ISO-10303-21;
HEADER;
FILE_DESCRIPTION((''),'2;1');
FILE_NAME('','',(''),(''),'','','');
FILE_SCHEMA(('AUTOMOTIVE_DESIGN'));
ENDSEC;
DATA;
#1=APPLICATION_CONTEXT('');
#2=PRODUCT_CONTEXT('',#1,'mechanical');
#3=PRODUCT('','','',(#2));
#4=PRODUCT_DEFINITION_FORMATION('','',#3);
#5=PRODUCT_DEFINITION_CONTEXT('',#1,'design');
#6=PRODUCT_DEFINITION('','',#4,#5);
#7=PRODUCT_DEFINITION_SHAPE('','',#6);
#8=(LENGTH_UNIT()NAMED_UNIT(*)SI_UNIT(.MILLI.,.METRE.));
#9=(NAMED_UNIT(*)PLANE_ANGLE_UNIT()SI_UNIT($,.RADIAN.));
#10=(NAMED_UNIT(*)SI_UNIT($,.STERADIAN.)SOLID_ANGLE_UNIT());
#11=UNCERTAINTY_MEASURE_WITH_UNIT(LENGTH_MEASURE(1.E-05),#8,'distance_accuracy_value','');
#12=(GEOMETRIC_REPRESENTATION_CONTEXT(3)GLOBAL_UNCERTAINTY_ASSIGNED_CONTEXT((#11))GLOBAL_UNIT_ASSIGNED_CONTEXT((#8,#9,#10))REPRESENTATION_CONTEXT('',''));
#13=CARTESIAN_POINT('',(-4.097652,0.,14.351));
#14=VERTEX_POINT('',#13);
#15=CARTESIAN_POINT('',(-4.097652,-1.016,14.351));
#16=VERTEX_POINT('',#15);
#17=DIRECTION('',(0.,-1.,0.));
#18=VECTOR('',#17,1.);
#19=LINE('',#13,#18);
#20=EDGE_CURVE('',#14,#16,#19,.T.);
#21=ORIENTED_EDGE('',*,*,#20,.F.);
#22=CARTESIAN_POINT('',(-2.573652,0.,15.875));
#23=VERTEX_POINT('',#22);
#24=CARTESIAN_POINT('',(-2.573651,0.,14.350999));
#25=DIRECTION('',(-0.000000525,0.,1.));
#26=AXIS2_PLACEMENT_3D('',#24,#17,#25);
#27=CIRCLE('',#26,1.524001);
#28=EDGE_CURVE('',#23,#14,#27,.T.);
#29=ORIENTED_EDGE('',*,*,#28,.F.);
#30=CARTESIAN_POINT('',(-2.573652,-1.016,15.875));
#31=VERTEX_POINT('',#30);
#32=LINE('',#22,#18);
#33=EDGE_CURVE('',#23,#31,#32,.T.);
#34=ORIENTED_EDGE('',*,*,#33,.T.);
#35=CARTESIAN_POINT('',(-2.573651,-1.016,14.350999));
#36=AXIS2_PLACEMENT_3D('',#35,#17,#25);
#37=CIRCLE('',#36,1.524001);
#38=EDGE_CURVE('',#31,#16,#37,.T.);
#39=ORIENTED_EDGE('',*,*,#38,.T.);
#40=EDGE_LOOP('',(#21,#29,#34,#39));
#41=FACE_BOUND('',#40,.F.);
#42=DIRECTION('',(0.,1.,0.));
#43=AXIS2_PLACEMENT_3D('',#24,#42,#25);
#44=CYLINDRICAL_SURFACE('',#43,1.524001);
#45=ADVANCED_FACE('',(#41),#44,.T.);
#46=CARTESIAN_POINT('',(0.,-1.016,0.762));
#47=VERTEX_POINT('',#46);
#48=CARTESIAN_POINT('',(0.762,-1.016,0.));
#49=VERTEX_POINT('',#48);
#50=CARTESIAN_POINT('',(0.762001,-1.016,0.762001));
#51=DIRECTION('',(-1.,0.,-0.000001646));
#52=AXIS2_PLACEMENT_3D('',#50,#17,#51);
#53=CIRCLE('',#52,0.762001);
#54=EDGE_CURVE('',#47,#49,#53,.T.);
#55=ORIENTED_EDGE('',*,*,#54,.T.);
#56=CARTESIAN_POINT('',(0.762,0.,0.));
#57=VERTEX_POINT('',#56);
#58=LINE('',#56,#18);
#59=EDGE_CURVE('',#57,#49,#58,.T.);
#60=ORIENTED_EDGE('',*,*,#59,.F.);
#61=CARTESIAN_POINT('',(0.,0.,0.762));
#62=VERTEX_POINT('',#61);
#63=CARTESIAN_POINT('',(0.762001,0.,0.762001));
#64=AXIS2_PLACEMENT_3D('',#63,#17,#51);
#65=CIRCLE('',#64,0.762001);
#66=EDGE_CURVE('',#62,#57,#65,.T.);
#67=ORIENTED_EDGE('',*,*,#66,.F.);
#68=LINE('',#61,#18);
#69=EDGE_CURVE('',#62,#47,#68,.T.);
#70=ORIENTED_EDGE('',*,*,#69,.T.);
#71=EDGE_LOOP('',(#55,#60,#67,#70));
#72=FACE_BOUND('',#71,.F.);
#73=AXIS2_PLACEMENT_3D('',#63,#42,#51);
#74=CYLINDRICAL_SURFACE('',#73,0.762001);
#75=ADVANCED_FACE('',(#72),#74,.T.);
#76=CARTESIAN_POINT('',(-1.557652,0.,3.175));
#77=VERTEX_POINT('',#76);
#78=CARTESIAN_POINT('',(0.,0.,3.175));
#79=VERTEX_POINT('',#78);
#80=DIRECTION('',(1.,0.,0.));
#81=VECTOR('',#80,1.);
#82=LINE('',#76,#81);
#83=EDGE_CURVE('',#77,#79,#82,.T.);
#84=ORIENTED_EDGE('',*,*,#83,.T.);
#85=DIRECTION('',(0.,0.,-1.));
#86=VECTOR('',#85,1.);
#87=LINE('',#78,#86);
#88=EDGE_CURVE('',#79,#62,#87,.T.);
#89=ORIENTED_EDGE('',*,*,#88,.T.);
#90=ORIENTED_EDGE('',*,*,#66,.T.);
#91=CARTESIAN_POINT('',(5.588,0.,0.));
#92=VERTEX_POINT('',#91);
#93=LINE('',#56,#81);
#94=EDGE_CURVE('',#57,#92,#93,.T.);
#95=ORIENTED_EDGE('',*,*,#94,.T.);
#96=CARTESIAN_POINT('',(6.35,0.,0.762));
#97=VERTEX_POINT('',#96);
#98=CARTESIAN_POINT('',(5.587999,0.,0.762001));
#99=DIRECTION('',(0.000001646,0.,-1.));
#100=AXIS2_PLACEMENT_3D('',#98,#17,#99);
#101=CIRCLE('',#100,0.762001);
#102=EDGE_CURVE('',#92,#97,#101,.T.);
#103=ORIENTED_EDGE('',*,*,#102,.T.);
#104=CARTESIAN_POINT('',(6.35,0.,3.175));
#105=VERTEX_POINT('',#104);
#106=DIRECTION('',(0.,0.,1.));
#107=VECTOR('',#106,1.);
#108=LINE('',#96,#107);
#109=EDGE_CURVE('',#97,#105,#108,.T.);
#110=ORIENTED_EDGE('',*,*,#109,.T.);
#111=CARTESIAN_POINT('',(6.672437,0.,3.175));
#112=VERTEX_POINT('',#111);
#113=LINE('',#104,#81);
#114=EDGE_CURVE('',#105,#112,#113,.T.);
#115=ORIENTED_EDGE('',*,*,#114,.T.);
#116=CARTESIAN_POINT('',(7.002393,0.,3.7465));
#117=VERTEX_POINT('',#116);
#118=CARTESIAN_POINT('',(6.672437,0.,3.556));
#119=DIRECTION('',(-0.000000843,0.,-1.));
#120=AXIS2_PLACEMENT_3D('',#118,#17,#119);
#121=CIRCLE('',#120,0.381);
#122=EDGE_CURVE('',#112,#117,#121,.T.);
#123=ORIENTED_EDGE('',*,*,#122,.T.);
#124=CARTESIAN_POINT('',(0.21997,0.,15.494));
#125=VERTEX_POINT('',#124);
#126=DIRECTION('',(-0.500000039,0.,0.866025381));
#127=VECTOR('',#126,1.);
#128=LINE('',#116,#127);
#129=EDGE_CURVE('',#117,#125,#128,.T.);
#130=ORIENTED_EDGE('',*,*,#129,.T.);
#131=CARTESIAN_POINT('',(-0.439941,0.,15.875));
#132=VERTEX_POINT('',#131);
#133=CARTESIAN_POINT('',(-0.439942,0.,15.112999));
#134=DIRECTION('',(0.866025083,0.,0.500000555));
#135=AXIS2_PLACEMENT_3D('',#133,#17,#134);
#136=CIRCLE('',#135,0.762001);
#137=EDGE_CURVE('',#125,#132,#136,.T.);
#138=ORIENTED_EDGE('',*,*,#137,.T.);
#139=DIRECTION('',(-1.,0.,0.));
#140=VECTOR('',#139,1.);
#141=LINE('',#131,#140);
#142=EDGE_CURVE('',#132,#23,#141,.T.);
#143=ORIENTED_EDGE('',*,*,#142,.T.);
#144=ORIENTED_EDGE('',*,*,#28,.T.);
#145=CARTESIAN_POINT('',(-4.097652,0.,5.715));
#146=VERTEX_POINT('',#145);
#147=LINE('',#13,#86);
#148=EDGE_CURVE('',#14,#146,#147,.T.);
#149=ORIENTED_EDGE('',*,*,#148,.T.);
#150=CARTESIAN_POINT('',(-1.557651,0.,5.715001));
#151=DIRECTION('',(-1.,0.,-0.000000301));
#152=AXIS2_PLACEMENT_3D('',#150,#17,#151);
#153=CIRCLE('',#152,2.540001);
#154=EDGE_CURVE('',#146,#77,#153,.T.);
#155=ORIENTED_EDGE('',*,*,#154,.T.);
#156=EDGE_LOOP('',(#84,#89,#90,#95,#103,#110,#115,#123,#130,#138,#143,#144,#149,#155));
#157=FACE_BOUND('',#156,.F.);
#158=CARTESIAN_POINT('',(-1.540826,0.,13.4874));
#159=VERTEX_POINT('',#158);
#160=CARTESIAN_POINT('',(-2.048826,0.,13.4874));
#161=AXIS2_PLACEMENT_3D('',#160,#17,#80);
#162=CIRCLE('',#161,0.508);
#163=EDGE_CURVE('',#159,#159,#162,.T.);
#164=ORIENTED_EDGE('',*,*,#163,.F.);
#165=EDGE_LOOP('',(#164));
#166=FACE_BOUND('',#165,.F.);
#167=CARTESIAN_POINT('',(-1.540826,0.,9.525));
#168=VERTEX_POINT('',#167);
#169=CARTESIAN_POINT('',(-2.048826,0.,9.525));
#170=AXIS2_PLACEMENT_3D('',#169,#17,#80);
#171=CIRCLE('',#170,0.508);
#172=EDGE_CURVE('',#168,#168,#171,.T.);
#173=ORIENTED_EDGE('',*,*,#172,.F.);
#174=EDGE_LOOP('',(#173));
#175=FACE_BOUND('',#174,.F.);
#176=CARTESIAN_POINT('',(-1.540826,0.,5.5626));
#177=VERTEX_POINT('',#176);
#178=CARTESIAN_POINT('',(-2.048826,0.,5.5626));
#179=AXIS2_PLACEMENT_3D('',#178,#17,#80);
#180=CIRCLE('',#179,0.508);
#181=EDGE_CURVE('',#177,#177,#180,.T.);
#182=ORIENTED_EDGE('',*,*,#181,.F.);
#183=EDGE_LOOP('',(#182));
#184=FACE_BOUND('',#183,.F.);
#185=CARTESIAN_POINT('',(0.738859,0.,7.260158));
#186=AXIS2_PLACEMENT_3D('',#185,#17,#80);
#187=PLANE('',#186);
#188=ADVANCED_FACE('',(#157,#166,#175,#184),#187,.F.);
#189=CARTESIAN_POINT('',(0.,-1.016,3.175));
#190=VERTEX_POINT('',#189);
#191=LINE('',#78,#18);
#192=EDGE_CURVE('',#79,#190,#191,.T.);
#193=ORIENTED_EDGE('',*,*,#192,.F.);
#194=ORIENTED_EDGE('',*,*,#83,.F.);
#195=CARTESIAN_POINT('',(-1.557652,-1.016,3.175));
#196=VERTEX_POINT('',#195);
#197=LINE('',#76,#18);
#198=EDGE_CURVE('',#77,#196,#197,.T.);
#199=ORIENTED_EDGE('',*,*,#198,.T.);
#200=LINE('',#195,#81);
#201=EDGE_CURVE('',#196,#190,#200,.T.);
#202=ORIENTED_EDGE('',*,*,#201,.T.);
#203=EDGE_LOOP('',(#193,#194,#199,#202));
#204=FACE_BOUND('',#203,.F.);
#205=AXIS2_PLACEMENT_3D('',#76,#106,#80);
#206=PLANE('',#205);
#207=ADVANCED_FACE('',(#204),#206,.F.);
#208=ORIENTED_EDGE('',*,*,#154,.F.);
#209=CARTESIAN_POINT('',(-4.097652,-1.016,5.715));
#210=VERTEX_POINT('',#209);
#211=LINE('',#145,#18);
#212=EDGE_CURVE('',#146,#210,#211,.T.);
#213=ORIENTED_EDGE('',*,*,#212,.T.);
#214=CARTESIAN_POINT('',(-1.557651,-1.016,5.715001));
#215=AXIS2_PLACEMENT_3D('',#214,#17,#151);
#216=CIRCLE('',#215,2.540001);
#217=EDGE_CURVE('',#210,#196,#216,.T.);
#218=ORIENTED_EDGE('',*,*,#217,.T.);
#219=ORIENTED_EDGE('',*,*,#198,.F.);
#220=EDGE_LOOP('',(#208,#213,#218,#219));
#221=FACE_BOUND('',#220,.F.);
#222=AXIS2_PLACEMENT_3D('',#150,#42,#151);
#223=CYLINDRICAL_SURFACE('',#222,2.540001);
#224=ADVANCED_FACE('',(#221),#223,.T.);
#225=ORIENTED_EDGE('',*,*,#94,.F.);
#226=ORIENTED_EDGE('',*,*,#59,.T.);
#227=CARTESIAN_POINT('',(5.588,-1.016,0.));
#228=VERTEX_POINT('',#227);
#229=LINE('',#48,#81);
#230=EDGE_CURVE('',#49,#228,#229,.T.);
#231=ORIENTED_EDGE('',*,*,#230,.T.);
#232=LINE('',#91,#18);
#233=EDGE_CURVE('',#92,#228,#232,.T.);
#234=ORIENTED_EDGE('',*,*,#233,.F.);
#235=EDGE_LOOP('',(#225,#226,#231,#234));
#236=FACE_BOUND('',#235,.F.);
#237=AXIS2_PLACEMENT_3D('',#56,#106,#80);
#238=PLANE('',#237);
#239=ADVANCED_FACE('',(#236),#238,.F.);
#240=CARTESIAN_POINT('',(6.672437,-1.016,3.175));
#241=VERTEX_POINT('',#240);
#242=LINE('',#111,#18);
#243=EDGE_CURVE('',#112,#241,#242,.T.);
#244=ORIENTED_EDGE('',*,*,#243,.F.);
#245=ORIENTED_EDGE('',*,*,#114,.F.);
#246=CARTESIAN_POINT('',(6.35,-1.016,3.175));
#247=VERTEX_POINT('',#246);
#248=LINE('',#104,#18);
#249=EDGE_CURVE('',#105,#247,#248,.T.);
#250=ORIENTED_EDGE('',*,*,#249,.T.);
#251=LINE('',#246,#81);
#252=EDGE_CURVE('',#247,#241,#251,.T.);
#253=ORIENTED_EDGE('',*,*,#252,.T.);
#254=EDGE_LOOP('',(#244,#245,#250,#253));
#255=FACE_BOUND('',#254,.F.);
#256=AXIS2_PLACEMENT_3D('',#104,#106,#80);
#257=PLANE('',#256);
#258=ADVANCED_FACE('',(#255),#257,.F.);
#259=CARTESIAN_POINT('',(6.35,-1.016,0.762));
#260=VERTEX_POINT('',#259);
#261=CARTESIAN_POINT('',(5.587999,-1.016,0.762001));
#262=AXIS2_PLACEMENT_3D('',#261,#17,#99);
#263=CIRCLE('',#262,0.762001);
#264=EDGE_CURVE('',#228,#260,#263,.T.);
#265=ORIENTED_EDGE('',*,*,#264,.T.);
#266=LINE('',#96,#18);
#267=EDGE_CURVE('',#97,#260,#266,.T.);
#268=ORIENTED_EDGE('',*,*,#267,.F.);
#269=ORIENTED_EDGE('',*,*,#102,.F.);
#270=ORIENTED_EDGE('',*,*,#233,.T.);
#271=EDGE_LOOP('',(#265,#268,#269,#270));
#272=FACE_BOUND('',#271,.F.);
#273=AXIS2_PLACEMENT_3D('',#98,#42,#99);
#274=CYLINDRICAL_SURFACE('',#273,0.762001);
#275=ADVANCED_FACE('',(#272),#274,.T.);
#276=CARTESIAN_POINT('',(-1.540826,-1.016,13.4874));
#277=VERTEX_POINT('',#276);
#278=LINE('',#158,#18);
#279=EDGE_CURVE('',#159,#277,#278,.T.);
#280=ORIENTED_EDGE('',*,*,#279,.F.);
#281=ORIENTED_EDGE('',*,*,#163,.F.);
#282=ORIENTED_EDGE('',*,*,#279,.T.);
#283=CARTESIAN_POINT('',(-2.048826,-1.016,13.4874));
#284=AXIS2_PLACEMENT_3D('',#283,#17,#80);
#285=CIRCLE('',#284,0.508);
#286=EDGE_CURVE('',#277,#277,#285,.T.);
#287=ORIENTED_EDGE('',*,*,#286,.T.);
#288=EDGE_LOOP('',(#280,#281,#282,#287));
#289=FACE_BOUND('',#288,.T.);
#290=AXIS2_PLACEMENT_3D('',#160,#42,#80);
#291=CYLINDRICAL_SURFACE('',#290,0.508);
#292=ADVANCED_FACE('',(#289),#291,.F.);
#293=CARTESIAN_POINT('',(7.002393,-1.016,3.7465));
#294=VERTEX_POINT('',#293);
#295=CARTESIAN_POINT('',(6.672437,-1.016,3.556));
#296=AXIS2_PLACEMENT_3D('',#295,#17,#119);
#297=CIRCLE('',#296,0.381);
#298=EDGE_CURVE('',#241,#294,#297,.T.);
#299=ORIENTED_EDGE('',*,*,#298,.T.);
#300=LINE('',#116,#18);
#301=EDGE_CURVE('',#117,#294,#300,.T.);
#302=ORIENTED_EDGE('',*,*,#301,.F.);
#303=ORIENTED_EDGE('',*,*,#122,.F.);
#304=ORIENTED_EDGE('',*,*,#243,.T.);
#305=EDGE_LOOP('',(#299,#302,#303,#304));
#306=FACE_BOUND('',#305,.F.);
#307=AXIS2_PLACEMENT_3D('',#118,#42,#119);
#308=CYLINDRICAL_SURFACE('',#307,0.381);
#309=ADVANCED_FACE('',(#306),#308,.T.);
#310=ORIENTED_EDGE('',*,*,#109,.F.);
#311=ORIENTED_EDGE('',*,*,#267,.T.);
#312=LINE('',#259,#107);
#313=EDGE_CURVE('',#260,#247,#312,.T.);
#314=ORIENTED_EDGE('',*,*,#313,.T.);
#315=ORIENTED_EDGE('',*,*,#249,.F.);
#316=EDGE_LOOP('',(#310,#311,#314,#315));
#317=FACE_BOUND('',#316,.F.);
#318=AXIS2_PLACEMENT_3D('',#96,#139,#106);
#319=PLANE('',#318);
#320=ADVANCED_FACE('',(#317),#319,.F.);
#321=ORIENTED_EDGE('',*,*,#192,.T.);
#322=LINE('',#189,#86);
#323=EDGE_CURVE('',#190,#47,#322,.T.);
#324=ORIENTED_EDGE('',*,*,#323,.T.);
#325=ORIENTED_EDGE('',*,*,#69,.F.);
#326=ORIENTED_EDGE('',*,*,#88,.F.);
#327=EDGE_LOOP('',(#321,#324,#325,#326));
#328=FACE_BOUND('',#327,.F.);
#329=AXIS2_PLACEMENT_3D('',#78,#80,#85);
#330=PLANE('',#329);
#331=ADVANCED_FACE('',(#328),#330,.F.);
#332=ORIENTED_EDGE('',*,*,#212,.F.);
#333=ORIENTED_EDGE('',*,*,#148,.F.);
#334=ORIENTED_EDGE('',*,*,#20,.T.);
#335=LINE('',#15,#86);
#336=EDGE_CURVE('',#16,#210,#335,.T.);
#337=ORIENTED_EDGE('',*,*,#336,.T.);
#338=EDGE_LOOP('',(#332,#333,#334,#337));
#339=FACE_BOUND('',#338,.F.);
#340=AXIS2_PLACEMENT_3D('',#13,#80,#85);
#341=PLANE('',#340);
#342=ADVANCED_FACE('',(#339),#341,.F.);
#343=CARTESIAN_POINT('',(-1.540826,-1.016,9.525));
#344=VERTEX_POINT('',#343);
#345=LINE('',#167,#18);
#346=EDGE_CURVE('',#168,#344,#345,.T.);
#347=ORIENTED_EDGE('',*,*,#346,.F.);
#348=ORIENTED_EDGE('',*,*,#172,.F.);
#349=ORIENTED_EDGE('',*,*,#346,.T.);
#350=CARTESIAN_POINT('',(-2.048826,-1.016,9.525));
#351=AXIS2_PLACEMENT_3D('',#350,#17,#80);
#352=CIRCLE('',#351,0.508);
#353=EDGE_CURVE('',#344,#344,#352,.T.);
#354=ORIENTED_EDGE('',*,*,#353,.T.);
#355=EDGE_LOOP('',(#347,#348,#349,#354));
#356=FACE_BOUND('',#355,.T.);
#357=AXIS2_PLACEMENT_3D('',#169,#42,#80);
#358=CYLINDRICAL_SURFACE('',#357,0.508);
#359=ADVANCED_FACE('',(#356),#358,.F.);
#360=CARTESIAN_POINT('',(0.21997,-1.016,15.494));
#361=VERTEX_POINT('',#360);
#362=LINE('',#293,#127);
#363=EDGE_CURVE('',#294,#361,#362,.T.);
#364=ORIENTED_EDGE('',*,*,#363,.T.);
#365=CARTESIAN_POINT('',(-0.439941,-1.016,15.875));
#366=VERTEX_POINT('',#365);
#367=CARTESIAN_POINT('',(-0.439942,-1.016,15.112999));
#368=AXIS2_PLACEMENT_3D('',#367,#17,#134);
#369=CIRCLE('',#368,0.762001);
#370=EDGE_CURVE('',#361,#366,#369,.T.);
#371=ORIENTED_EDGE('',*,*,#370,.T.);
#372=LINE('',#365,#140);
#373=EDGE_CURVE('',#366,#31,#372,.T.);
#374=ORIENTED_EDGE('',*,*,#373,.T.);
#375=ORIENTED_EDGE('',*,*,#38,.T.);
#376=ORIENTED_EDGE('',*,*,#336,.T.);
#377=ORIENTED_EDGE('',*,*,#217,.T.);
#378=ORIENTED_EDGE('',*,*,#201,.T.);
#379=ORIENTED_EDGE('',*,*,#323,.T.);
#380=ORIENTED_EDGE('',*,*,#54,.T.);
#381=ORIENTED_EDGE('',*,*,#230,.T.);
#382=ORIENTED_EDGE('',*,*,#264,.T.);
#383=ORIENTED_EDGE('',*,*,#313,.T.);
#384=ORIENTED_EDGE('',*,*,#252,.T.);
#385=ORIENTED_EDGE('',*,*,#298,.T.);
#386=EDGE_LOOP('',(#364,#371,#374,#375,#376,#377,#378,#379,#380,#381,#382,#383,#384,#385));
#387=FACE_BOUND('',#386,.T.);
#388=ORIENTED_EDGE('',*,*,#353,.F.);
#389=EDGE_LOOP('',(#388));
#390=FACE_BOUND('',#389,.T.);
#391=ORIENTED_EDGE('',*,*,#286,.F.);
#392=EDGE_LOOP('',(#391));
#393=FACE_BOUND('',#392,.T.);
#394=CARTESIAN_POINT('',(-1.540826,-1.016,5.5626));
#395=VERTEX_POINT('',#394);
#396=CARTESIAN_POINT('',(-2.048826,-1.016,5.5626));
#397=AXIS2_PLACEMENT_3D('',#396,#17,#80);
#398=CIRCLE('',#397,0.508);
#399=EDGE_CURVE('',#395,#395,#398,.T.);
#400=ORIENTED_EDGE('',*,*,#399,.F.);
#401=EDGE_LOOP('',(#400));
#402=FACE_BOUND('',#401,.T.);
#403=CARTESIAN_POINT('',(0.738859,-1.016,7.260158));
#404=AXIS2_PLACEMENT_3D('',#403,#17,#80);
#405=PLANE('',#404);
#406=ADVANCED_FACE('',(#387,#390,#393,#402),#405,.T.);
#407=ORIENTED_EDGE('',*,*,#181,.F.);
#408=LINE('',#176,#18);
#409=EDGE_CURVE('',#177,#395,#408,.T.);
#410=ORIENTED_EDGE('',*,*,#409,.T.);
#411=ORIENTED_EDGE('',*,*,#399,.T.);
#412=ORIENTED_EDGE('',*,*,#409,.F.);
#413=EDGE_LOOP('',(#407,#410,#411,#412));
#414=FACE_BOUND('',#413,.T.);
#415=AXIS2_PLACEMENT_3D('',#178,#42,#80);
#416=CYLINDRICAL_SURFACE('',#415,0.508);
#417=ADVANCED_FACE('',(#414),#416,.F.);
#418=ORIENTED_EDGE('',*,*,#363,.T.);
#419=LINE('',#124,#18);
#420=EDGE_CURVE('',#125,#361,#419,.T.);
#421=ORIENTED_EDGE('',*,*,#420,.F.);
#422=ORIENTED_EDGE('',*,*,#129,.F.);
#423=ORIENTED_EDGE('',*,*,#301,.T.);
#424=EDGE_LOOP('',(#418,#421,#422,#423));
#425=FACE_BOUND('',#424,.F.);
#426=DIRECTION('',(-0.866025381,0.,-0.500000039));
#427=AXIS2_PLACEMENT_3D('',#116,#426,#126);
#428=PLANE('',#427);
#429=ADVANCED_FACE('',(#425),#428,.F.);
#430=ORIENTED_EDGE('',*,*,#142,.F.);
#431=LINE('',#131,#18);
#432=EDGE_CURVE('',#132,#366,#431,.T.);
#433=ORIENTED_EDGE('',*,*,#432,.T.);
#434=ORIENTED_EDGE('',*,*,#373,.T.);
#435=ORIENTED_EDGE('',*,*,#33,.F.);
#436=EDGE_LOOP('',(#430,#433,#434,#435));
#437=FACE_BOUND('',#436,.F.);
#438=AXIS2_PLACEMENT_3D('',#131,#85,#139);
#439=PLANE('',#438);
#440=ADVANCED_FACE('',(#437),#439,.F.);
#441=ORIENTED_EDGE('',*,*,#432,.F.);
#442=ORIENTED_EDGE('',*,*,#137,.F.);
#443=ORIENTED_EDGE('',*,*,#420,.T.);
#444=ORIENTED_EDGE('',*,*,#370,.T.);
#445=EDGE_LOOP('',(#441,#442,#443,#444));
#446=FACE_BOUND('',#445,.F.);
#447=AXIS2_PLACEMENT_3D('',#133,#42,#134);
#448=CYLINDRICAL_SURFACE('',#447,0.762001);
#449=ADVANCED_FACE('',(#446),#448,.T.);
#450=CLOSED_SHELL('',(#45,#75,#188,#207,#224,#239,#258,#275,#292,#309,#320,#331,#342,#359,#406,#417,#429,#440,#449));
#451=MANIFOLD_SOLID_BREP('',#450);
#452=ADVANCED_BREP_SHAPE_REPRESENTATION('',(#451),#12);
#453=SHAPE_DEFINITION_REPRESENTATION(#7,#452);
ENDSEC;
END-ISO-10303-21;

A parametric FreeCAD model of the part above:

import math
import FreeCAD as App
import Part
import Sketcher
Q = App.Units.Quantity

doc = App.newDocument("Part")
body = doc.addObject("PartDesign::Body", "Body")

# Sketch on XZ plane
sketch1 = body.newObject("Sketcher::SketchObject", "Sketch")
sketch1.AttachmentSupport = (doc.getObject("XZ_Plane"), [""])
sketch1.MapMode = "FlatFace"
sketch1.addGeometry([
    Part.LineSegment(App.Vector(0, 3.17, 0), App.Vector(0, 0.76, 0)),  # 0
    Part.ArcOfCircle(Part.Circle(App.Vector(0.76, 0.76, 0), App.Vector(0, 0, 1), 0.76), math.radians(-180), math.radians(-90)),  # 1
    Part.LineSegment(App.Vector(0.76, 0, 0), App.Vector(5.59, 0, 0)),  # 2
    Part.ArcOfCircle(Part.Circle(App.Vector(5.59, 0.76, 0), App.Vector(0, 0, 1), 0.76), math.radians(-90), math.radians(0)),  # 3
    Part.LineSegment(App.Vector(6.35, 0.76, 0), App.Vector(6.35, 3.17, 0)),  # 4
    Part.LineSegment(App.Vector(6.35, 3.17, 0), App.Vector(6.67, 3.17, 0)),  # 5
    Part.ArcOfCircle(Part.Circle(App.Vector(6.67, 3.56, 0), App.Vector(0, 0, 1), 0.38), math.radians(-90), math.radians(30)),  # 6
    Part.LineSegment(App.Vector(7, 3.75, 0), App.Vector(0.22, 15.49, 0)),  # 7
    Part.ArcOfCircle(Part.Circle(App.Vector(-0.44, 15.11, 0), App.Vector(0, 0, 1), 0.76), math.radians(30), math.radians(90)),  # 8
    Part.LineSegment(App.Vector(-0.44, 15.88, 0), App.Vector(-2.57, 15.88, 0)),  # 9
    Part.ArcOfCircle(Part.Circle(App.Vector(-2.57, 14.35, 0), App.Vector(0, 0, 1), 1.52), math.radians(90), math.radians(180)),  # 10
    Part.LineSegment(App.Vector(-4.1, 14.35, 0), App.Vector(-4.1, 5.71, 0)),  # 11
    Part.ArcOfCircle(Part.Circle(App.Vector(-1.56, 5.72, 0), App.Vector(0, 0, 1), 2.54), math.radians(-180), math.radians(-90)),  # 12
    Part.LineSegment(App.Vector(-1.56, 3.17, 0), App.Vector(0, 3.17, 0)),  # 13
    Part.Circle(App.Vector(-2.05, 5.56, 0), App.Vector(0, 0, 1), 0.51),  # 14
    Part.Circle(App.Vector(-2.05, 9.53, 0), App.Vector(0, 0, 1), 0.51),  # 15
    Part.Circle(App.Vector(-2.05, 13.49, 0), App.Vector(0, 0, 1), 0.51),  # 16
], False)
sketch1.addConstraint([
    Sketcher.Constraint("Tangent", 0, 2, 1, 1),
    Sketcher.Constraint("Tangent", 1, 2, 2, 1),
    Sketcher.Constraint("Tangent", 2, 2, 3, 1),
    Sketcher.Constraint("Tangent", 3, 2, 4, 1),
    Sketcher.Constraint("Coincident", 4, 2, 5, 1),
    Sketcher.Constraint("Tangent", 5, 2, 6, 1),
    Sketcher.Constraint("Tangent", 6, 2, 7, 1),
    Sketcher.Constraint("Tangent", 7, 2, 8, 1),
    Sketcher.Constraint("Tangent", 8, 2, 9, 1),
    Sketcher.Constraint("Tangent", 9, 2, 10, 1),
    Sketcher.Constraint("Tangent", 10, 2, 11, 1),
    Sketcher.Constraint("Tangent", 11, 2, 12, 1),
    Sketcher.Constraint("Tangent", 12, 2, 13, 1),
    Sketcher.Constraint("Coincident", 13, 2, 0, 1),
    Sketcher.Constraint("Vertical", 0),
    Sketcher.Constraint("Horizontal", 2),
    Sketcher.Constraint("Vertical", 4),
    Sketcher.Constraint("Horizontal", 5),
    Sketcher.Constraint("Horizontal", 9),
    Sketcher.Constraint("Vertical", 11),
    Sketcher.Constraint("Horizontal", 13),
    Sketcher.Constraint("Equal", 1, 3),
    Sketcher.Constraint("Equal", 3, 8),
    Sketcher.Constraint("Equal", 14, 15),
    Sketcher.Constraint("Equal", 15, 16),
    Sketcher.Constraint("PointOnObject", 0, 2, -2),
    Sketcher.Constraint("PointOnObject", 1, 2, -1),
    Sketcher.Constraint("Horizontal", 5, 2, 12, 2),
    Sketcher.Constraint("Vertical", 14, 3, 15, 3),
    Sketcher.Constraint("Vertical", 15, 3, 16, 3),
    Sketcher.Constraint("Radius", 12, Q("0.1 in")),
    Sketcher.Constraint("Diameter", 14, Q("0.04 in")),
    Sketcher.Constraint("Radius", 1, Q("0.03 in")),
    Sketcher.Constraint("Radius", 10, Q("0.06 in")),
    Sketcher.Constraint("Angle", 7, Q("120.000003 deg")),
    Sketcher.Constraint("Radius", 6, Q("0.015 in")),
    Sketcher.Constraint("DistanceX", 2, 1, 2, 2, Q("0.19 in")),
    Sketcher.Constraint("DistanceY", 11, 2, 11, 1, Q("0.34 in")),
    Sketcher.Constraint("DistanceY", 0, 2, 0, 1, Q("0.095 in")),
    Sketcher.Constraint("DistanceY", 12, 3, 15, 3, Q("0.15 in")),
    Sketcher.Constraint("DistanceY", -1, 1, 14, 3, Q("0.219 in")),
    Sketcher.Constraint("DistanceY", -1, 1, 16, 3, Q("0.531 in")),
    Sketcher.Constraint("DistanceX", 9, 2, 9, 1, 2.133711),
    Sketcher.Constraint("DistanceX", 5, 1, 5, 2, 0.322437),
    Sketcher.Constraint("DistanceX", 14, 3, -1, 1, 2.048826),
])
pad1 = body.newObject("PartDesign::Pad", "Pad")
pad1.Profile = sketch1
pad1.Length = Q("0.04 in")

doc.recompute()
